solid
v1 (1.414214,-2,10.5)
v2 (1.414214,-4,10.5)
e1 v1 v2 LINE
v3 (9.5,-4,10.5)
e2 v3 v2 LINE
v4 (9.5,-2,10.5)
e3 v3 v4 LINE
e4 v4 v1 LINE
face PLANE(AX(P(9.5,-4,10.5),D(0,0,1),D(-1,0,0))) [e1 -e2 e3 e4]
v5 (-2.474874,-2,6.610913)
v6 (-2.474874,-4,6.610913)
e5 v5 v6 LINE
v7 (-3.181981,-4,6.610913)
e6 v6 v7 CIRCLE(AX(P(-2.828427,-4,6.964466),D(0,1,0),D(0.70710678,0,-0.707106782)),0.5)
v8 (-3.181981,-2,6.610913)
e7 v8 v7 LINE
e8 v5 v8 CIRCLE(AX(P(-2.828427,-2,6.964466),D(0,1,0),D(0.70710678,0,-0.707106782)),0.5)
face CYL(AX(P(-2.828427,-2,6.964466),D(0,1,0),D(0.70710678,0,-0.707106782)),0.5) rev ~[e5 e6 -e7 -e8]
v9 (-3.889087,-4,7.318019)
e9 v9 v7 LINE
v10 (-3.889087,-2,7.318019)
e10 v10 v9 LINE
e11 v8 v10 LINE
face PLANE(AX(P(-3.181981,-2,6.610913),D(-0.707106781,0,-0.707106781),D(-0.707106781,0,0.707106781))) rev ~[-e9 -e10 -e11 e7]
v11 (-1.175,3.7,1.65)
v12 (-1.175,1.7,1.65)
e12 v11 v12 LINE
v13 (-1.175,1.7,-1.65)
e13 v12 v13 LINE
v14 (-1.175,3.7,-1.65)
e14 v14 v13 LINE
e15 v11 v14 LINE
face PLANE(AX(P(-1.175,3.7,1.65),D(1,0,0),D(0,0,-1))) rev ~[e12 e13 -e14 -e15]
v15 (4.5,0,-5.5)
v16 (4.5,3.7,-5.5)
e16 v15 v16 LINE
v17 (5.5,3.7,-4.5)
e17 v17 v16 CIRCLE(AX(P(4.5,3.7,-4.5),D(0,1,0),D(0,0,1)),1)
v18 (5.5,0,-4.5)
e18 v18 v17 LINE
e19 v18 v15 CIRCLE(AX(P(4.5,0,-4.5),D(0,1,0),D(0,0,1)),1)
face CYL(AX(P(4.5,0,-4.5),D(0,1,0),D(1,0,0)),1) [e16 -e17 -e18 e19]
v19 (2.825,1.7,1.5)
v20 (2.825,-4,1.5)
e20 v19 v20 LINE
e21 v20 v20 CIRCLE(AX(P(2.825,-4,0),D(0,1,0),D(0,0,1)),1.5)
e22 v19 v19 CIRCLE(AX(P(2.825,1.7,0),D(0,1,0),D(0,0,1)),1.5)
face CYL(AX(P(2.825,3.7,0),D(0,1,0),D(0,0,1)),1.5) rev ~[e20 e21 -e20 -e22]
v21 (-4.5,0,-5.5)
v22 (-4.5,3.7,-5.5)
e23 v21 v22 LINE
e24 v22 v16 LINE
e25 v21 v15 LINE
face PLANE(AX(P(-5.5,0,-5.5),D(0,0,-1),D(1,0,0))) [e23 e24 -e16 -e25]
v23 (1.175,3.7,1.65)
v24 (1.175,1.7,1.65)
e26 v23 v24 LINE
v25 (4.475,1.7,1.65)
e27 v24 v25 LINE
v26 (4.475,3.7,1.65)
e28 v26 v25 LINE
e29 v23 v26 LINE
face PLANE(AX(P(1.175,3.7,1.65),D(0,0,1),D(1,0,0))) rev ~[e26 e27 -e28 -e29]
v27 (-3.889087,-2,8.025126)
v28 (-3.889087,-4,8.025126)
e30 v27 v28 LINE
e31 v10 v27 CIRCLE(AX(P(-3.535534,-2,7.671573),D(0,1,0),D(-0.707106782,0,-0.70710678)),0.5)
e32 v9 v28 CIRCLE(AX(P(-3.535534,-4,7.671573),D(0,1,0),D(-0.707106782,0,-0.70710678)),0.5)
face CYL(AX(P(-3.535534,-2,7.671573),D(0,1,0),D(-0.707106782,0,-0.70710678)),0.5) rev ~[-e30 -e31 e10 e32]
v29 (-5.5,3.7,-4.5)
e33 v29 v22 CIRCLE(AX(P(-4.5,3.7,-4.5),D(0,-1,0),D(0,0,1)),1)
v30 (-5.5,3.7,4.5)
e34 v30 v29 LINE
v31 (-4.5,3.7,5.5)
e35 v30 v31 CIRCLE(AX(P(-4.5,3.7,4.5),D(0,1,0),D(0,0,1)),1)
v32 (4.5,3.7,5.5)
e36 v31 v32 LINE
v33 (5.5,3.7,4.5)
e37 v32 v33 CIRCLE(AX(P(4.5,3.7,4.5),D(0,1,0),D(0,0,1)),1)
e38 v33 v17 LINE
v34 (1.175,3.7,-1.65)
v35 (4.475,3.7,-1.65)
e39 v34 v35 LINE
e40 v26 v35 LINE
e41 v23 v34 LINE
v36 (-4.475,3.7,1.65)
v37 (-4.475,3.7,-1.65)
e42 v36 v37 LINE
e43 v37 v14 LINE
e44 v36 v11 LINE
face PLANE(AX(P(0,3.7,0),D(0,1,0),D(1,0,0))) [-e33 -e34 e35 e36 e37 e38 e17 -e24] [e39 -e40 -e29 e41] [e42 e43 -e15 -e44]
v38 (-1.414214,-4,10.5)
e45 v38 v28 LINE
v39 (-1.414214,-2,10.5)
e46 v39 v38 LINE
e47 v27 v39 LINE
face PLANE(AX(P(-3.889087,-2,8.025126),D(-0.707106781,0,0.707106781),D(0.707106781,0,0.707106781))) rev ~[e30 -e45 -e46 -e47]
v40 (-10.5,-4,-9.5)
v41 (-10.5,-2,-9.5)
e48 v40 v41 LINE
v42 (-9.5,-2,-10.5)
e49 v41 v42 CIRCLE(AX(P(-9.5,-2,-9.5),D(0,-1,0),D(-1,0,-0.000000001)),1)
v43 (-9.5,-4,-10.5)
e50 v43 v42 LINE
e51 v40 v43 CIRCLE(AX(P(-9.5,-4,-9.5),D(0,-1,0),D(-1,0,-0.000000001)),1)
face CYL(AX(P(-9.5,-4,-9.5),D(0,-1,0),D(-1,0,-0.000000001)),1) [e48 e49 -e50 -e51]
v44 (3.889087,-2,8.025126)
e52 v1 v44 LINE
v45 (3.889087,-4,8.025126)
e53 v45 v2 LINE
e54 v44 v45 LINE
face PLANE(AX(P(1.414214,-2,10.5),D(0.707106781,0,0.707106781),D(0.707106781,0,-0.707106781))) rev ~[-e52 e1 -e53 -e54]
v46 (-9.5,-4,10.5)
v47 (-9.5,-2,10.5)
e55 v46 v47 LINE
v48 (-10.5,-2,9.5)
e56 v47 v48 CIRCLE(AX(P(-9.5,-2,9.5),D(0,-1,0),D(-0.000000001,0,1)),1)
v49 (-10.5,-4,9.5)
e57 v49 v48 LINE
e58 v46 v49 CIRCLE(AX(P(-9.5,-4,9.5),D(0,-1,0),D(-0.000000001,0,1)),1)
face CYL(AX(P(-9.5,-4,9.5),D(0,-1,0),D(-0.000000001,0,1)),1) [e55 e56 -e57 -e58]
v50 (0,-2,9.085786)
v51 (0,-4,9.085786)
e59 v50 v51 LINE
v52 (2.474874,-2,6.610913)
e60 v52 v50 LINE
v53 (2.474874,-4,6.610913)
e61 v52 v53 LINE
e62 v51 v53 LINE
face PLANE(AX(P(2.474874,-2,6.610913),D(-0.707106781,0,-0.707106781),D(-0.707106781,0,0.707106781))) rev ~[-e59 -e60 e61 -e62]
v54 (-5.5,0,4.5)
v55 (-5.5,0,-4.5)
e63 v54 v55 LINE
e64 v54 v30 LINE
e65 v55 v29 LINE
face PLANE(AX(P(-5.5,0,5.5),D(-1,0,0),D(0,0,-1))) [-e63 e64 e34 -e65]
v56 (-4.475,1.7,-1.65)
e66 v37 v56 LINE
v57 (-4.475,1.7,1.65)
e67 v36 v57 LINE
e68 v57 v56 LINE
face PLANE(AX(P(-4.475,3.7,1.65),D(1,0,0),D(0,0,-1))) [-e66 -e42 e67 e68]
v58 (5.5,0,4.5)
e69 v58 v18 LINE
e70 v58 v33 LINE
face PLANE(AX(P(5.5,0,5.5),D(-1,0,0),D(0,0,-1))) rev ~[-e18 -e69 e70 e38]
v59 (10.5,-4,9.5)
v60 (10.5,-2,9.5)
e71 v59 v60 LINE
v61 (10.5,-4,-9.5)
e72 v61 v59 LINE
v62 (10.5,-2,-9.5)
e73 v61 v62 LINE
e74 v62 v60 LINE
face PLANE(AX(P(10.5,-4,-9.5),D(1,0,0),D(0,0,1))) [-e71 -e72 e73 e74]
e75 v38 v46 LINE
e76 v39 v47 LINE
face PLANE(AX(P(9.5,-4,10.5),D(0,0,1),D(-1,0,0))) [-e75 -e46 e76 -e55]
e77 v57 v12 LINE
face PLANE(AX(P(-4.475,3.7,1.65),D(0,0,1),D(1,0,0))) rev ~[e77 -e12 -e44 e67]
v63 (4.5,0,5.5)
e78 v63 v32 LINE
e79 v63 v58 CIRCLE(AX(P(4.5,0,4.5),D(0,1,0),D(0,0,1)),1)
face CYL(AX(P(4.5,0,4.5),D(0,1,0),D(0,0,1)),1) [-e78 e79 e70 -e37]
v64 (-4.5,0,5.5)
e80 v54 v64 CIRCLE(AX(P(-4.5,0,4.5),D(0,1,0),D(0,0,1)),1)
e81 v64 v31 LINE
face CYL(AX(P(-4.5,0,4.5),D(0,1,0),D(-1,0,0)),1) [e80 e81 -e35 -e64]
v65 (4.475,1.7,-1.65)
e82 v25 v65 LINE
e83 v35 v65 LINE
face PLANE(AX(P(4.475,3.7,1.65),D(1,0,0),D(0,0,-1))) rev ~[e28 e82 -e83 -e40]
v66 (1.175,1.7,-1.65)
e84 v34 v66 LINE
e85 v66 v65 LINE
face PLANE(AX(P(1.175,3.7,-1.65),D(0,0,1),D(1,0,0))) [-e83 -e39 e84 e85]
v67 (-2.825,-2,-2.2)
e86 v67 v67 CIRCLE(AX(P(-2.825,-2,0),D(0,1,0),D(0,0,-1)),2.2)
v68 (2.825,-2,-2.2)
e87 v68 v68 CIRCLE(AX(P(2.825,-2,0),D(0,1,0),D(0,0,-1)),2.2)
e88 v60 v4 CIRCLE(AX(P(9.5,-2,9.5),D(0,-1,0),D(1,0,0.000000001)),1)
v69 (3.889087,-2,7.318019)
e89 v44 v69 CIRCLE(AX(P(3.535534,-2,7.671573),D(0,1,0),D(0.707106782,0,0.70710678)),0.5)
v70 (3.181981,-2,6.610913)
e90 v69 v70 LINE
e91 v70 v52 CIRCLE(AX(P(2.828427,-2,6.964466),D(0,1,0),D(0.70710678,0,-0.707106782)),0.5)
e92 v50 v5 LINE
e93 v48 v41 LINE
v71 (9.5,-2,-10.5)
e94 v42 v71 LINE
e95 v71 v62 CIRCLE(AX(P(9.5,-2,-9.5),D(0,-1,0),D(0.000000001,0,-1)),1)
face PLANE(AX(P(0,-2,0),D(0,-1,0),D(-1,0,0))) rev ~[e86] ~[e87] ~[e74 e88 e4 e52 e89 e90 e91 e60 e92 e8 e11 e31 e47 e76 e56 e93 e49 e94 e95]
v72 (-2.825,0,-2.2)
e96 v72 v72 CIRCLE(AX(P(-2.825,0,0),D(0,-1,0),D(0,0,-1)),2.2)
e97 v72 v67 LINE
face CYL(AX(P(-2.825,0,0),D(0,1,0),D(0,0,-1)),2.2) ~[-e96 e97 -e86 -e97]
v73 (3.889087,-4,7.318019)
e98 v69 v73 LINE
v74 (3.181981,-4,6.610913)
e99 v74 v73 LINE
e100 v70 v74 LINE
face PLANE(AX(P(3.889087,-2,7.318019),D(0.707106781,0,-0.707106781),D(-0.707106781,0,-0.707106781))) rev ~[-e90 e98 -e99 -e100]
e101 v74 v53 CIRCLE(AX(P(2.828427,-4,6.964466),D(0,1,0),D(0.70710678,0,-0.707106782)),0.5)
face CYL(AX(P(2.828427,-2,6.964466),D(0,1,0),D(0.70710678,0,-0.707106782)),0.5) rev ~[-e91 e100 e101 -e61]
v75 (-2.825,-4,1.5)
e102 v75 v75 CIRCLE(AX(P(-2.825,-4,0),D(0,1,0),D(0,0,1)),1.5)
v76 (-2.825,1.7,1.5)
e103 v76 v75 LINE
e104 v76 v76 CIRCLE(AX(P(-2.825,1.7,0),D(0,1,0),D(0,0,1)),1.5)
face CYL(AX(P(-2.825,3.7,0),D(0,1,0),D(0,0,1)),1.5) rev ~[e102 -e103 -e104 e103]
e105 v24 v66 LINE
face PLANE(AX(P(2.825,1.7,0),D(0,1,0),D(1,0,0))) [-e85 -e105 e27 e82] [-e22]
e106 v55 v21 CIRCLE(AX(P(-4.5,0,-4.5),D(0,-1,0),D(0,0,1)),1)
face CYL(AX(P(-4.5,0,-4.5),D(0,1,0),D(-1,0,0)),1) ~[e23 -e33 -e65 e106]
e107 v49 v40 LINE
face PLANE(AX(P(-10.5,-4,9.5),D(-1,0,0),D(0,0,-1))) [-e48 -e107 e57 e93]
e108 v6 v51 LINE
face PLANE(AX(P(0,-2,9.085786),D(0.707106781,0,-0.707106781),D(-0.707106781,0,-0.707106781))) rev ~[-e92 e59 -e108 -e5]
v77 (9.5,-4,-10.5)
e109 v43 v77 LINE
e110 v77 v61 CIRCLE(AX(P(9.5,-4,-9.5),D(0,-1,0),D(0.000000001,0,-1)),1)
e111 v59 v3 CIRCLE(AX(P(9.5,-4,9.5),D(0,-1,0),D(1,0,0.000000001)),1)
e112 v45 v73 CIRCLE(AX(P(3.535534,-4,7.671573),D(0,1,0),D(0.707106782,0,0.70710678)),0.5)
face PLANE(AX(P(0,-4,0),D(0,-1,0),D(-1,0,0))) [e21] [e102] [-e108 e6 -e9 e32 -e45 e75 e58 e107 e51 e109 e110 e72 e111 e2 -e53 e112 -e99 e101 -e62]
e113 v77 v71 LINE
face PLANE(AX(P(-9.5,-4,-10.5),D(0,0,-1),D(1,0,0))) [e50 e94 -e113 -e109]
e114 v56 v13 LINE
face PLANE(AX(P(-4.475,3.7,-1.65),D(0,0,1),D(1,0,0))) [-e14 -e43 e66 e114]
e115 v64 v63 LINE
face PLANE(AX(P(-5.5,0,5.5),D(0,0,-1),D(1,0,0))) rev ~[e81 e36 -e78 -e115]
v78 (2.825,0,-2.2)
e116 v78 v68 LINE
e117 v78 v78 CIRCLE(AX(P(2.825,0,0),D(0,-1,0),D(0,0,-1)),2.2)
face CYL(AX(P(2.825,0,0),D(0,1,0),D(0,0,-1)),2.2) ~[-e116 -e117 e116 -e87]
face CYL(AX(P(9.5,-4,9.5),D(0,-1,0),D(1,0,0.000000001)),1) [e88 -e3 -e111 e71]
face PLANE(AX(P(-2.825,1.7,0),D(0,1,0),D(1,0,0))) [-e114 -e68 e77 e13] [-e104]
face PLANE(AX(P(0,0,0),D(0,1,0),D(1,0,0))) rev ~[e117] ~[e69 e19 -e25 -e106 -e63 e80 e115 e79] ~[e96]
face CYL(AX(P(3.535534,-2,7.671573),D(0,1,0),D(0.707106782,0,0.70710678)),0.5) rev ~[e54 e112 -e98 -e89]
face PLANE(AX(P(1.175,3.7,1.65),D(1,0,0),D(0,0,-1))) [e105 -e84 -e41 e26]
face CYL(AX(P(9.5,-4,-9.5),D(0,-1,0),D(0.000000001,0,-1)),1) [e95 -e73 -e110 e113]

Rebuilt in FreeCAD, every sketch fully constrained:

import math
import FreeCAD as App
import Part
import Sketcher

V = App.Vector
Q = App.Units.Quantity


def edges_at(feature, points):
    """Names of the edges that pass closest to the given points."""
    edges = feature.Shape.Edges
    near = lambda p: min(range(len(edges)), key=lambda i: edges[i].distToShape(Part.Vertex(*p))[0])
    return sorted({f"Edge{near(p) + 1}" for p in points})


def add_polygon(sketch, points):
    """Adds a closed chain of lines whose ends are joined by coincident constraints."""
    first, n = sketch.GeometryCount, len(points)
    for a, b in zip(points, points[1:] + points[:1]):
        sketch.addGeometry(Part.LineSegment(App.Vector(*a, 0), App.Vector(*b, 0)), False)
    for i in range(n):
        sketch.addConstraint(Sketcher.Constraint("Coincident", first + i, 2, first + (i + 1) % n, 1))

doc = App.newDocument("Part")
body = doc.addObject("PartDesign::Body", "Body")

# Sketch on XZ plane
sketch1 = body.newObject("Sketcher::SketchObject", "Sketch")
sketch1.AttachmentSupport = (doc.getObject("XZ_Plane"), [""])
sketch1.MapMode = "FlatFace"
add_polygon(sketch1, [(-6, -6), (-6, 6), (6, 6), (6, -6)])  # lines 0-3
sketch1.addConstraint(Sketcher.Constraint("Vertical", 0))
sketch1.addConstraint(Sketcher.Constraint("Horizontal", 1))
sketch1.addConstraint(Sketcher.Constraint("Vertical", 2))
sketch1.addConstraint(Sketcher.Constraint("Horizontal", 3))
sketch1.addConstraint(Sketcher.Constraint("Symmetric", 0, 2, 2, 2, -1, 1))
sketch1.addConstraint(Sketcher.Constraint("Equal", 3, 0))
sketch1.addConstraint(Sketcher.Constraint("DistanceX", 1, 1, 1, 2, Q("11 mm")))
pad1 = body.newObject("PartDesign::Pad", "Pad")
pad1.Profile = sketch1
pad1.Length = 3.7
pad1.Reversed = True
doc.recompute()

fillet = body.newObject("PartDesign::Fillet", "Fillet")
fillet.Base = (pad1, edges_at(pad1, [
    (5.5, 1.85, 5.5),
    (-5.5, 1.85, 5.5),
    (-5.5, 1.85, -5.5),
    (5.5, 1.85, -5.5),
]))
fillet.Radius = 1

# Sketch on XZ plane
sketch2 = body.newObject("Sketcher::SketchObject", "Sketch001")
sketch2.AttachmentSupport = (doc.getObject("XZ_Plane"), [""])
sketch2.MapMode = "FlatFace"
sketch2.AttachmentOffset = App.Placement(V(0, 0, -3.7), App.Rotation())
add_polygon(sketch2, [(-4.5, -1.6), (-4.5, 1.6), (-1.2, 1.6), (-1.2, -1.6)])  # lines 0-3
add_polygon(sketch2, [(1.2, -1.6), (1.2, 1.6), (4.5, 1.6), (4.5, -1.6)])  # lines 4-7
sketch2.addConstraint(Sketcher.Constraint("Vertical", 0))
sketch2.addConstraint(Sketcher.Constraint("Horizontal", 1))
sketch2.addConstraint(Sketcher.Constraint("Vertical", 2))
sketch2.addConstraint(Sketcher.Constraint("Horizontal", 3))
sketch2.addConstraint(Sketcher.Constraint("Vertical", 4))
sketch2.addConstraint(Sketcher.Constraint("Horizontal", 5))
sketch2.addConstraint(Sketcher.Constraint("Vertical", 6))
sketch2.addConstraint(Sketcher.Constraint("Horizontal", 7))
sketch2.addConstraint(Sketcher.Constraint("Symmetric", 2, 2, 4, 2, -1, 1))
sketch2.addConstraint(Sketcher.Constraint("Symmetric", 0, 2, 6, 2, -1, 1))
sketch2.addConstraint(Sketcher.Constraint("Horizontal", 1, 2, 4, 2))
sketch2.addConstraint(Sketcher.Constraint("Equal", 7, 0))
sketch2.addConstraint(Sketcher.Constraint("DistanceX", 1, 1, 1, 2, Q("3.3 mm")))
sketch2.addConstraint(Sketcher.Constraint("DistanceX", 1, 2, 4, 2, Q("2.35 mm")))
pocket1 = body.newObject("PartDesign::Pocket", "Pocket")
pocket1.Profile = sketch2
pocket1.Length = 2
pocket1.Reversed = True

# Sketch on XZ plane
sketch3 = body.newObject("Sketcher::SketchObject", "Sketch002")
sketch3.AttachmentSupport = (doc.getObject("XZ_Plane"), [""])
sketch3.MapMode = "FlatFace"
sketch3.addGeometry(Part.Circle(V(-2.8, 0, 0), V(0, 0, 1), 2.2), False)
sketch3.addGeometry(Part.Circle(V(2.8, 0, 0), V(0, 0, 1), 2.2), False)
sketch3.addConstraint(Sketcher.Constraint("Equal", 0, 1))
sketch3.addConstraint(Sketcher.Constraint("Symmetric", 0, 3, 1, 3, -1, 1))
sketch3.addConstraint(Sketcher.Constraint("PointOnObject", 0, 3, -1))
sketch3.addConstraint(Sketcher.Constraint("Diameter", 0, Q("4.4 mm")))
sketch3.addConstraint(Sketcher.Constraint("DistanceX", 0, 3, 1, 3, Q("5.65 mm")))
pad2 = body.newObject("PartDesign::Pad", "Pad001")
pad2.Profile = sketch3
pad2.Length = 4

# Sketch on XZ plane
sketch4 = body.newObject("Sketcher::SketchObject", "Sketch003")
sketch4.AttachmentSupport = (doc.getObject("XZ_Plane"), [""])
sketch4.MapMode = "FlatFace"
sketch4.AttachmentOffset = App.Placement(V(0, 0, 4), App.Rotation())
sketch4.addGeometry(Part.LineSegment(V(-9.5, -10.5, 0), V(9.5, -10.5, 0)), False)
sketch4.addGeometry(Part.ArcOfCircle(Part.Circle(V(9.5, -9.5, 0), V(0, 0, 1), 1), math.radians(-90), math.radians(0)), False)
sketch4.addGeometry(Part.LineSegment(V(10.5, -9.5, 0), V(10.5, 9.5, 0)), False)
sketch4.addGeometry(Part.ArcOfCircle(Part.Circle(V(9.5, 9.5, 0), V(0, 0, 1), 1), math.radians(0), math.radians(90)), False)
sketch4.addGeometry(Part.LineSegment(V(9.5, 10.5, 0), V(-9.5, 10.5, 0)), False)
sketch4.addGeometry(Part.ArcOfCircle(Part.Circle(V(-9.5, 9.5, 0), V(0, 0, 1), 1), math.radians(90), math.radians(180)), False)
sketch4.addGeometry(Part.LineSegment(V(-10.5, 9.5, 0), V(-10.5, -9.5, 0)), False)
sketch4.addGeometry(Part.ArcOfCircle(Part.Circle(V(-9.5, -9.5, 0), V(0, 0, 1), 1), math.radians(-180), math.radians(-90)), False)
sketch4.addConstraint(Sketcher.Constraint("Tangent", 0, 2, 1, 1))
sketch4.addConstraint(Sketcher.Constraint("Tangent", 1, 2, 2, 1))
sketch4.addConstraint(Sketcher.Constraint("Tangent", 2, 2, 3, 1))
sketch4.addConstraint(Sketcher.Constraint("Tangent", 3, 2, 4, 1))
sketch4.addConstraint(Sketcher.Constraint("Tangent", 4, 2, 5, 1))
sketch4.addConstraint(Sketcher.Constraint("Tangent", 5, 2, 6, 1))
sketch4.addConstraint(Sketcher.Constraint("Tangent", 6, 2, 7, 1))
sketch4.addConstraint(Sketcher.Constraint("Tangent", 7, 2, 0, 1))
sketch4.addConstraint(Sketcher.Constraint("Horizontal", 0))
sketch4.addConstraint(Sketcher.Constraint("Vertical", 2))
sketch4.addConstraint(Sketcher.Constraint("Horizontal", 4))
sketch4.addConstraint(Sketcher.Constraint("Vertical", 6))
sketch4.addConstraint(Sketcher.Constraint("Equal", 1, 3))
sketch4.addConstraint(Sketcher.Constraint("Equal", 3, 5))
sketch4.addConstraint(Sketcher.Constraint("Equal", 5, 7))
sketch4.addConstraint(Sketcher.Constraint("Symmetric", 1, 3, 5, 3, -1, 1))
sketch4.addConstraint(Sketcher.Constraint("Equal", 4, 2))
sketch4.addConstraint(Sketcher.Constraint("Radius", 1, Q("1 mm")))
sketch4.addConstraint(Sketcher.Constraint("DistanceX", 0, 1, 0, 2, Q("19 mm")))
pad3 = body.newObject("PartDesign::Pad", "Pad002")
pad3.Profile = sketch4
pad3.Length = 2
pad3.Reversed = True

# Sketch on XZ plane
sketch5 = body.newObject("Sketcher::SketchObject", "Sketch004")
sketch5.AttachmentSupport = (doc.getObject("XZ_Plane"), [""])
sketch5.MapMode = "FlatFace"
sketch5.AttachmentOffset = App.Placement(V(0, 0, -3.7), App.Rotation())
sketch5.addGeometry(Part.Circle(V(-2.8, 0, 0), V(0, 0, 1), 1.5), False)
sketch5.addGeometry(Part.Circle(V(2.8, 0, 0), V(0, 0, 1), 1.5), False)
sketch5.addConstraint(Sketcher.Constraint("Equal", 0, 1))
sketch5.addConstraint(Sketcher.Constraint("Symmetric", 0, 3, 1, 3, -1, 1))
sketch5.addConstraint(Sketcher.Constraint("PointOnObject", 0, 3, -1))
sketch5.addConstraint(Sketcher.Constraint("Diameter", 0, Q("3 mm")))
sketch5.addConstraint(Sketcher.Constraint("DistanceX", 0, 3, 1, 3, Q("5.65 mm")))
pocket2 = body.newObject("PartDesign::Pocket", "Pocket001")
pocket2.Profile = sketch5
pocket2.Type = "ThroughAll"
pocket2.Reversed = True

# Sketch on XZ plane
sketch6 = body.newObject("Sketcher::SketchObject", "Sketch005")
sketch6.AttachmentSupport = (doc.getObject("XZ_Plane"), [""])
sketch6.MapMode = "FlatFace"
sketch6.AttachmentOffset = App.Placement(V(0, 0, 2), App.Rotation())
sketch6.addGeometry(Part.LineSegment(V(1.4, 10.5, 0), V(3.9, 8, 0)), False)
sketch6.addGeometry(Part.ArcOfCircle(Part.Circle(V(3.5, 7.7, 0), V(0, 0, 1), 0.5), math.radians(-45), math.radians(45)), False)
sketch6.addGeometry(Part.LineSegment(V(3.9, 7.3, 0), V(3.2, 6.6, 0)), False)
sketch6.addGeometry(Part.ArcOfCircle(Part.Circle(V(2.8, 7, 0), V(0, 0, 1), 0.5), math.radians(-135), math.radians(-45)), False)
sketch6.addGeometry(Part.LineSegment(V(2.5, 6.6, 0), V(0, 9.1, 0)), False)
sketch6.addGeometry(Part.LineSegment(V(0, 9.1, 0), V(-2.5, 6.6, 0)), False)
sketch6.addGeometry(Part.ArcOfCircle(Part.Circle(V(-2.8, 7, 0), V(0, 0, 1), 0.5), math.radians(-135), math.radians(-45)), False)
sketch6.addGeometry(Part.LineSegment(V(-3.2, 6.6, 0), V(-3.9, 7.3, 0)), False)
sketch6.addGeometry(Part.ArcOfCircle(Part.Circle(V(-3.5, 7.7, 0), V(0, 0, 1), 0.5), math.radians(135), math.radians(225)), False)
sketch6.addGeometry(Part.LineSegment(V(-3.9, 8, 0), V(-1.4, 10.5, 0)), False)
sketch6.addGeometry(Part.LineSegment(V(-1.4, 10.5, 0), V(1.4, 10.5, 0)), False)
sketch6.addConstraint(Sketcher.Constraint("Tangent", 0, 2, 1, 2))
sketch6.addConstraint(Sketcher.Constraint("Tangent", 1, 1, 2, 1))
sketch6.addConstraint(Sketcher.Constraint("Tangent", 2, 2, 3, 2))
sketch6.addConstraint(Sketcher.Constraint("Tangent", 3, 1, 4, 1))
sketch6.addConstraint(Sketcher.Constraint("Coincident", 4, 2, 5, 1))
sketch6.addConstraint(Sketcher.Constraint("Tangent", 5, 2, 6, 2))
sketch6.addConstraint(Sketcher.Constraint("Tangent", 6, 1, 7, 1))
sketch6.addConstraint(Sketcher.Constraint("Tangent", 7, 2, 8, 2))
sketch6.addConstraint(Sketcher.Constraint("Tangent", 8, 1, 9, 1))
sketch6.addConstraint(Sketcher.Constraint("Coincident", 9, 2, 10, 1))
sketch6.addConstraint(Sketcher.Constraint("Coincident", 10, 2, 0, 1))
sketch6.addConstraint(Sketcher.Constraint("Horizontal", 10))
sketch6.addConstraint(Sketcher.Constraint("Equal", 1, 3))
sketch6.addConstraint(Sketcher.Constraint("Equal", 3, 6))
sketch6.addConstraint(Sketcher.Constraint("Equal", 6, 8))
sketch6.addConstraint(Sketcher.Constraint("Symmetric", 3, 3, 6, 3, -2))
sketch6.addConstraint(Sketcher.Constraint("Symmetric", 1, 3, 8, 3, -2))
sketch6.addConstraint(Sketcher.Constraint("PointOnObject", 4, 2, -2))
sketch6.addConstraint(Sketcher.Constraint("Perpendicular", 0, 2))
sketch6.addConstraint(Sketcher.Constraint("Perpendicular", 2, 4))
sketch6.addConstraint(Sketcher.Constraint("Perpendicular", 4, 5))
sketch6.addConstraint(Sketcher.Constraint("Perpendicular", 7, 9))
sketch6.addConstraint(Sketcher.Constraint("Equal", 0, 4))
sketch6.addConstraint(Sketcher.Constraint("Radius", 1, Q("0.5 mm")))
sketch6.addConstraint(Sketcher.Constraint("Distance", 2, Q("1 mm")))
sketch6.addConstraint(Sketcher.Constraint("Distance", 0, Q("3.5 mm")))
sketch6.addConstraint(Sketcher.Constraint("DistanceY", -1, 1, 9, 2, Q("10.5 mm")))
pocket3 = body.newObject("PartDesign::Pocket", "Pocket002")
pocket3.Profile = sketch6
pocket3.Type = "ThroughAll"
pocket3.Reversed = True

doc.recompute()
